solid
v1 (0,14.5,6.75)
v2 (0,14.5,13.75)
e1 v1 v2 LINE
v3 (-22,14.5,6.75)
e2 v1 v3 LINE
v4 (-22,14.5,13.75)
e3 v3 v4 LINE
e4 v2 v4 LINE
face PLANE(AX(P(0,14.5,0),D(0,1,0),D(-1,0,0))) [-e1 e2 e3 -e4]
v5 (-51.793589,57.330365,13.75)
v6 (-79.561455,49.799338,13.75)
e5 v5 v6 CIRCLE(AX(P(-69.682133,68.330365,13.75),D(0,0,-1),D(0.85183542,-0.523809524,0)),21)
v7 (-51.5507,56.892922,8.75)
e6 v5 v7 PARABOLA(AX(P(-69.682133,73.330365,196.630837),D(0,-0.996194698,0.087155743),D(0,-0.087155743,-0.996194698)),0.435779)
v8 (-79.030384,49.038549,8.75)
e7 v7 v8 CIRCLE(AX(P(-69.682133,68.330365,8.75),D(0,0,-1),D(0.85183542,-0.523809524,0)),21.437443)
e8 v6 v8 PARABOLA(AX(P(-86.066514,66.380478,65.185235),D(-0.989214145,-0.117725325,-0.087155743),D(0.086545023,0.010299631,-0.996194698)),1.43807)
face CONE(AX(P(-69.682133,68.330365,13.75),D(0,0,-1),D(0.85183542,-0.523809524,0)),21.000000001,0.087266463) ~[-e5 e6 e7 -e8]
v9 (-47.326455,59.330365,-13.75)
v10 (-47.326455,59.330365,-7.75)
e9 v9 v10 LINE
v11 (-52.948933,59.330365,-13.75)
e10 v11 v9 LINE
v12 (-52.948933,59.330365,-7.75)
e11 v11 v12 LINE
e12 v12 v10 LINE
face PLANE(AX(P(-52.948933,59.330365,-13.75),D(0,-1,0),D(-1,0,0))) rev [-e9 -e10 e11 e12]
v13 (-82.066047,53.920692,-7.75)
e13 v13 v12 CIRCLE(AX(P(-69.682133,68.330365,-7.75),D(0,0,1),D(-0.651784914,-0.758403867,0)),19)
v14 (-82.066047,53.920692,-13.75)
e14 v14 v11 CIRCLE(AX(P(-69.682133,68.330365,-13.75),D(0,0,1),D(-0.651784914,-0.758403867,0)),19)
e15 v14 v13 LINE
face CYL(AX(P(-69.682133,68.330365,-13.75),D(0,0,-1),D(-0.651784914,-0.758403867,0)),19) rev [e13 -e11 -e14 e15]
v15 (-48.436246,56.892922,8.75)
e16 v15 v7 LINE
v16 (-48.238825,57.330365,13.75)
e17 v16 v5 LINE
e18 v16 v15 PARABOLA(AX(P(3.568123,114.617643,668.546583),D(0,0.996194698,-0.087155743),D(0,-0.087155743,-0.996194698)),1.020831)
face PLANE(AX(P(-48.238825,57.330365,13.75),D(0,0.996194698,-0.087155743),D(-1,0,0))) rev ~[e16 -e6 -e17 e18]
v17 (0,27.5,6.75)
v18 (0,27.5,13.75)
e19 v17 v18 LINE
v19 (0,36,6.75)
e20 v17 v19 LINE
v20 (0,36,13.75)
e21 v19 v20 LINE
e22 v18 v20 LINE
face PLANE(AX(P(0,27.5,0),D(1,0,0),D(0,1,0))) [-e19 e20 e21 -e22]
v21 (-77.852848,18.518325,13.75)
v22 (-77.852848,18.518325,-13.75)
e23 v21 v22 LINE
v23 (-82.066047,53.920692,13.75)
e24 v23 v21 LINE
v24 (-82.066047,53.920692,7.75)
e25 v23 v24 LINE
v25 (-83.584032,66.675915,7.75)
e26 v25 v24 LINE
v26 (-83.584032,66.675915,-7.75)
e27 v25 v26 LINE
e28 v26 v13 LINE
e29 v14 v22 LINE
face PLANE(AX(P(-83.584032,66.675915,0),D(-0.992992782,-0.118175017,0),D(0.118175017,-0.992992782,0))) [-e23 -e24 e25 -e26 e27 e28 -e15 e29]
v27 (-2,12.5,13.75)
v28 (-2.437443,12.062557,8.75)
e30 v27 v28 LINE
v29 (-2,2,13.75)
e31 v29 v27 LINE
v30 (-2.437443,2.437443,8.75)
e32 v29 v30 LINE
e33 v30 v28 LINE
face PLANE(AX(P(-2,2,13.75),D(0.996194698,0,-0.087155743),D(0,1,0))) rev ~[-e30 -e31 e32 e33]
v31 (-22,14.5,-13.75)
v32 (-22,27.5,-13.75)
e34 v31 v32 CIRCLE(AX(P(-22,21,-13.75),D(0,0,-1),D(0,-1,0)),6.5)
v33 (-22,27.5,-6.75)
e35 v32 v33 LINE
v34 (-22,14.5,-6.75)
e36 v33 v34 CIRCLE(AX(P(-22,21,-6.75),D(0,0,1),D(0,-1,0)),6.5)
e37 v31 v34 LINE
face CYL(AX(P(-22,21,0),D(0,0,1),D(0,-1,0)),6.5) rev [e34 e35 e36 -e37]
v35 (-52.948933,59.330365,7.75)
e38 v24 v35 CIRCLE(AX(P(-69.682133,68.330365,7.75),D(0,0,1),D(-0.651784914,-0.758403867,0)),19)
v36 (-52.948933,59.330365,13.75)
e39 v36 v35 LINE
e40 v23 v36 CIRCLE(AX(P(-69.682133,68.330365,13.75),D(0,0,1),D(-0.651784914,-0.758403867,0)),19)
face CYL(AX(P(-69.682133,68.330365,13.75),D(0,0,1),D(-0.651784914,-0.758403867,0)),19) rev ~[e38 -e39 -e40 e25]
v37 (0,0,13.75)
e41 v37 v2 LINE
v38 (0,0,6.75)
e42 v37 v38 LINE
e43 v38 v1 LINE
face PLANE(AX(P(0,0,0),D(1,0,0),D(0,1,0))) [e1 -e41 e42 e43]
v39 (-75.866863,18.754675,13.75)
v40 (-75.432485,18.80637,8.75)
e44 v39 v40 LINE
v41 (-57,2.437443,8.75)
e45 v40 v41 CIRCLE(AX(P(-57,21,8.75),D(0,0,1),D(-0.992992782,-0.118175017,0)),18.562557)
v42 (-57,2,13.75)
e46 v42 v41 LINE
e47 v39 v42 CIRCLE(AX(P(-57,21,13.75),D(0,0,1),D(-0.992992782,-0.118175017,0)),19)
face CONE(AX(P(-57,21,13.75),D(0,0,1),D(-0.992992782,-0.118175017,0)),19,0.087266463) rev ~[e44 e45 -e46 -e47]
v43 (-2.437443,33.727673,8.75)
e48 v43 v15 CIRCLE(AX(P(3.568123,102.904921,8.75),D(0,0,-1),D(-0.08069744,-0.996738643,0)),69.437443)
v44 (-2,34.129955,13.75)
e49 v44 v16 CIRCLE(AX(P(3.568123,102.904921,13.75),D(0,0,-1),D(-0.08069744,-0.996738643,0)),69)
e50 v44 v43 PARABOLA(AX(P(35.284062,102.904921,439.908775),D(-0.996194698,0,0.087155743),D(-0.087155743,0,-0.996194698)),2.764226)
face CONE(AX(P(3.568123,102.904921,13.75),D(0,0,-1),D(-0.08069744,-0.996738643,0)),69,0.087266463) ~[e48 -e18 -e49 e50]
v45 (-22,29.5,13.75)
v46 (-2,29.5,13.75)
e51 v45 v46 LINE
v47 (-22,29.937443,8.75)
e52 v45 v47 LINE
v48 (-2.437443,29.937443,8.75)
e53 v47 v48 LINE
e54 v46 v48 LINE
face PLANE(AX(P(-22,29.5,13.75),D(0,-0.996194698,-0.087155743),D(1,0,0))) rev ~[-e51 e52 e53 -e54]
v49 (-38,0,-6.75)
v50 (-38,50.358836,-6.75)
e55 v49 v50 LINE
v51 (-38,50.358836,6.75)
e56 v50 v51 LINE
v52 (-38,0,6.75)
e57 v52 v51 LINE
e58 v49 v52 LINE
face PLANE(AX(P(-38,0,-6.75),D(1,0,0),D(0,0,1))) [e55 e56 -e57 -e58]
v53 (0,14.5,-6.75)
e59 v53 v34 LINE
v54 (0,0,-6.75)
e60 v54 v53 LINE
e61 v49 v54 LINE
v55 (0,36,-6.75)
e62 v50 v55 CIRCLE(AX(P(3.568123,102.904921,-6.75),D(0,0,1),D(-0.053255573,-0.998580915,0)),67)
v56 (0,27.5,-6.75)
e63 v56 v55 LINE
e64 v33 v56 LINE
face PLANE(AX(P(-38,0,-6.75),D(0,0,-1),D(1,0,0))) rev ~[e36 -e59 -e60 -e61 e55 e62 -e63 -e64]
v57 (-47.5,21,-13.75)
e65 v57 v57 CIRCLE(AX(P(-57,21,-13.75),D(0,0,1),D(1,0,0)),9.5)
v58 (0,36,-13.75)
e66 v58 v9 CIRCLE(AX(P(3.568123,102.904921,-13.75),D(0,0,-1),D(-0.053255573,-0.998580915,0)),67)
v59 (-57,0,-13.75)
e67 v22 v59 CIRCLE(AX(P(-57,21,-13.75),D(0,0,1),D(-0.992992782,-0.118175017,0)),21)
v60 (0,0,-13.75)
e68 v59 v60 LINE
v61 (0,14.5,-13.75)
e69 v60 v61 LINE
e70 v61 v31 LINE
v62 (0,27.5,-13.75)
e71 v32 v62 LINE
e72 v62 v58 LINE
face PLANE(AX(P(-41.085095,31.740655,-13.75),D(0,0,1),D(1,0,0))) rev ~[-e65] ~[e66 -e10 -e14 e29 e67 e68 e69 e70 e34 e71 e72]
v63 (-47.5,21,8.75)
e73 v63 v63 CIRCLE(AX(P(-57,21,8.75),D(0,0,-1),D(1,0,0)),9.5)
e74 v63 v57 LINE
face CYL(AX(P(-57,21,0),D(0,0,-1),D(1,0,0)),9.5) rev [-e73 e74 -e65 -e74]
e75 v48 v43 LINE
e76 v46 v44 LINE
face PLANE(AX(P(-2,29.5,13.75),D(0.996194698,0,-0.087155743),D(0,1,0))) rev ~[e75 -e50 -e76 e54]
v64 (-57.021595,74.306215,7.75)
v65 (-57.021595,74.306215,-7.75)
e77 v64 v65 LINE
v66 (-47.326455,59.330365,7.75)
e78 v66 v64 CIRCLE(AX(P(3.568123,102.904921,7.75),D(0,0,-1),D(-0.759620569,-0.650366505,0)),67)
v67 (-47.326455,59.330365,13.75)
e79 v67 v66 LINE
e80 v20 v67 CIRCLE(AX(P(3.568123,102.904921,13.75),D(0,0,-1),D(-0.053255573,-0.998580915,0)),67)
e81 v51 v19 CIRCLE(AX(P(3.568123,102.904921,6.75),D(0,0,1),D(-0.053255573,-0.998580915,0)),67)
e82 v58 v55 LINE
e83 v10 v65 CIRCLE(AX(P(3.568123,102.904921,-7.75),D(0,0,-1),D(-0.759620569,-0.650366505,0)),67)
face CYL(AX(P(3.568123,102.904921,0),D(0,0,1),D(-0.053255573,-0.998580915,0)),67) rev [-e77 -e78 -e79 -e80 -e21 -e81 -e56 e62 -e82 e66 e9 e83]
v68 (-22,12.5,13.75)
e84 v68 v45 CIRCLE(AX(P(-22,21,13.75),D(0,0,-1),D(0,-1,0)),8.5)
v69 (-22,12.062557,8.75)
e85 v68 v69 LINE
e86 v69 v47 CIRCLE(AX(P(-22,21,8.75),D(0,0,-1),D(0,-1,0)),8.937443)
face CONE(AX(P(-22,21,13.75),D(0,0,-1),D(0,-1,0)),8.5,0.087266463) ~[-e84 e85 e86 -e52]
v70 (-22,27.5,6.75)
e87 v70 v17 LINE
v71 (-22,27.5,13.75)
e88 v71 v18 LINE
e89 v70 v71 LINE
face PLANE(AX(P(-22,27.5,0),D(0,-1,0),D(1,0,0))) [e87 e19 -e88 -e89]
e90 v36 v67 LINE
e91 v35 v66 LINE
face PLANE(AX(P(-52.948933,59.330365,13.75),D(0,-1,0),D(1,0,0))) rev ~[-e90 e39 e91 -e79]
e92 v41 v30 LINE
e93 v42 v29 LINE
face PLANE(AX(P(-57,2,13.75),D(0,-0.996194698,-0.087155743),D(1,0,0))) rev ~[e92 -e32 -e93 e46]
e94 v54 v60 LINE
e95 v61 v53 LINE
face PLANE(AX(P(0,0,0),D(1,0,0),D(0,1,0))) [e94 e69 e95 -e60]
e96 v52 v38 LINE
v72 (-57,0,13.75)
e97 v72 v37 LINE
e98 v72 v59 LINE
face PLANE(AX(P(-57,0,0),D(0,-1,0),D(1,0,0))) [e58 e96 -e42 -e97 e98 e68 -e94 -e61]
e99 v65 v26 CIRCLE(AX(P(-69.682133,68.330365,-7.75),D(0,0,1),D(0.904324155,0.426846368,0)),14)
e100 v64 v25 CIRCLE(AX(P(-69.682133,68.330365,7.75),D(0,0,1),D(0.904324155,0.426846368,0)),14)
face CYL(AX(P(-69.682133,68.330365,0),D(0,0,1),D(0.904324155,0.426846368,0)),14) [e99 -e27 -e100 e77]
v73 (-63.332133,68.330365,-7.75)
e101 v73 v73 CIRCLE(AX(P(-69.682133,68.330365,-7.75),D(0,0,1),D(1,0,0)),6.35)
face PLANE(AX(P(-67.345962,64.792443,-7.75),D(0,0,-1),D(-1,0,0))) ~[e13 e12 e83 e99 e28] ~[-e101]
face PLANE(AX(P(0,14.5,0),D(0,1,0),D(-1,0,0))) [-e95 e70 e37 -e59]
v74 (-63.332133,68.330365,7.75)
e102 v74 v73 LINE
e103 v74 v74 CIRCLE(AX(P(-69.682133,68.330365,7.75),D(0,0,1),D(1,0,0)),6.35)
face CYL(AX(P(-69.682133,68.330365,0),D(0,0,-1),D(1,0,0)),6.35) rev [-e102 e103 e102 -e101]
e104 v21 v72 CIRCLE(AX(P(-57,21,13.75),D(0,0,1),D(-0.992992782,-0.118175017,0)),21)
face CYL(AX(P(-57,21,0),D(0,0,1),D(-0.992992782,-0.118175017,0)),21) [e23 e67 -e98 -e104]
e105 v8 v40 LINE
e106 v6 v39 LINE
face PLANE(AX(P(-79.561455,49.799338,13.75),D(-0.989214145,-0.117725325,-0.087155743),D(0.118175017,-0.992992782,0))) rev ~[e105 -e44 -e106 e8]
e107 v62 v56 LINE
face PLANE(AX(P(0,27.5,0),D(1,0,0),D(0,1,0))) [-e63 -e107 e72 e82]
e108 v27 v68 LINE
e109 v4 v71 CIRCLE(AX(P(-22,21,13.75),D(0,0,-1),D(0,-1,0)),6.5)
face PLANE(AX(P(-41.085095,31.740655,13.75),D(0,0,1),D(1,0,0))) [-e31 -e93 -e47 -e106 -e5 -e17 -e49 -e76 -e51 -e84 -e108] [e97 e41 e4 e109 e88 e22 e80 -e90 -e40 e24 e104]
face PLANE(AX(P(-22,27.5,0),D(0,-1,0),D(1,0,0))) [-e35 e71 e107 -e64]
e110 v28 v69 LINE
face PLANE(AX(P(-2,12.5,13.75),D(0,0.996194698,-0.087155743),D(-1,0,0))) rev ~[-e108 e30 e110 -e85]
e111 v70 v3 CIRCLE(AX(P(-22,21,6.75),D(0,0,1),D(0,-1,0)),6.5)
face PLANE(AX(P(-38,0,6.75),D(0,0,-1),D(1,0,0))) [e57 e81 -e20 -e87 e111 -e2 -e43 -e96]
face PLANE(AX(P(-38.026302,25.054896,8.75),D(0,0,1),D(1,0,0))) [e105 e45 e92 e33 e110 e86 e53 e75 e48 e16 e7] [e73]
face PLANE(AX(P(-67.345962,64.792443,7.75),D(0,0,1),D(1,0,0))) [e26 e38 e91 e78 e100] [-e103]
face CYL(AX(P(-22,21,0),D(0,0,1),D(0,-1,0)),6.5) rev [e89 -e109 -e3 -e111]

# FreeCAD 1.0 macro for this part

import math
import FreeCAD as App
import Part
import Sketcher
Q = App.Units.Quantity


def faces_at(feature, points):
    """Names of the faces that lie closest to the given points."""
    faces = feature.Shape.Faces
    near = lambda p: min(range(len(faces)), key=lambda i: faces[i].distToShape(Part.Vertex(*p))[0])
    return sorted({f"Face{near(p) + 1}" for p in points})


def add_polygon(sketch, points):
    """Adds a closed chain of lines whose ends are joined by coincident constraints."""
    first, n = sketch.GeometryCount, len(points)
    for a, b in zip(points, points[1:] + points[:1]):
        sketch.addGeometry(Part.LineSegment(App.Vector(*a, 0), App.Vector(*b, 0)), False)
    for i in range(n):
        sketch.addConstraint(Sketcher.Constraint("Coincident", first + i, 2, first + (i + 1) % n, 1))

doc = App.newDocument("Part")
body = doc.addObject("PartDesign::Body", "Body")

sketch1 = body.newObject("Sketcher::SketchObject", "Sketch")
sketch1.AttachmentSupport = (doc.getObject("XY_Plane"), [""])
sketch1.MapMode = "FlatFace"
sketch1.addGeometry(Part.LineSegment(App.Vector(0, 0, 0), App.Vector(0, 14.5, 0)), False)
sketch1.addGeometry(Part.LineSegment(App.Vector(0, 14.5, 0), App.Vector(-22, 14.5, 0)), False)
sketch1.addGeometry(Part.ArcOfCircle(Part.Circle(App.Vector(-22, 21, 0), App.Vector(0, 0, 1), 6.5), math.radians(90), math.radians(270)), False)
sketch1.addGeometry(Part.LineSegment(App.Vector(-22, 27.5, 0), App.Vector(0, 27.5, 0)), False)
sketch1.addGeometry(Part.LineSegment(App.Vector(0, 27.5, 0), App.Vector(0, 36, 0)), False)
sketch1.addGeometry(Part.ArcOfCircle(Part.Circle(App.Vector(3.568123, 102.904921, 0), App.Vector(0, 0, 1), 67), math.radians(-154.732411), math.radians(-93.052764)), False)
sketch1.addGeometry(Part.ArcOfCircle(Part.Circle(App.Vector(-69.682133, 68.330365, 0), App.Vector(0, 0, 1), 14), math.radians(25.267589), math.radians(186.786789)), False)
sketch1.addGeometry(Part.LineSegment(App.Vector(-83.584032, 66.675915, 0), App.Vector(-77.852848, 18.518325, 0)), False)
sketch1.addGeometry(Part.ArcOfCircle(Part.Circle(App.Vector(-57, 21, 0), App.Vector(0, 0, 1), 21), math.radians(-173.213211), math.radians(-90)), False)
sketch1.addGeometry(Part.LineSegment(App.Vector(-57, 0, 0), App.Vector(0, 0, 0)), False)
sketch1.addGeometry(Part.Circle(App.Vector(-57, 21, 0), App.Vector(0, 0, 1), 9.5), False)
sketch1.addGeometry(Part.Circle(App.Vector(-69.682133, 68.330365, 0), App.Vector(0, 0, 1), 6.35), False)
sketch1.addConstraint(Sketcher.Constraint("Coincident", 0, 2, 1, 1))
sketch1.addConstraint(Sketcher.Constraint("Tangent", 1, 2, 2, 2))
sketch1.addConstraint(Sketcher.Constraint("Tangent", 2, 1, 3, 1))
sketch1.addConstraint(Sketcher.Constraint("Coincident", 3, 2, 4, 1))
sketch1.addConstraint(Sketcher.Constraint("Coincident", 4, 2, 5, 2))
sketch1.addConstraint(Sketcher.Constraint("Tangent", 5, 1, 6, 1))
sketch1.addConstraint(Sketcher.Constraint("Tangent", 6, 2, 7, 1))
sketch1.addConstraint(Sketcher.Constraint("Tangent", 7, 2, 8, 1))
sketch1.addConstraint(Sketcher.Constraint("Tangent", 8, 2, 9, 1))
sketch1.addConstraint(Sketcher.Constraint("Coincident", 9, 2, 0, 1))
sketch1.addConstraint(Sketcher.Constraint("Vertical", 0))
sketch1.addConstraint(Sketcher.Constraint("Horizontal", 1))
sketch1.addConstraint(Sketcher.Constraint("Horizontal", 3))
sketch1.addConstraint(Sketcher.Constraint("Vertical", 4))
sketch1.addConstraint(Sketcher.Constraint("Horizontal", 9))
sketch1.addConstraint(Sketcher.Constraint("Coincident", 9, 2, -1, 1))
sketch1.addConstraint(Sketcher.Constraint("Coincident", 10, 3, 8, 3))
sketch1.addConstraint(Sketcher.Constraint("Coincident", 11, 3, 6, 3))
sketch1.addConstraint(Sketcher.Constraint("PointOnObject", 3, 2, -2))
sketch1.addConstraint(Sketcher.Constraint("Horizontal", 2, 3, 8, 3))
sketch1.addConstraint(Sketcher.Constraint("Diameter", 10, Q("19 mm")))
sketch1.addConstraint(Sketcher.Constraint("Radius", 5, Q("67 mm")))
sketch1.addConstraint(Sketcher.Constraint("Radius", 6, Q("14 mm")))
sketch1.addConstraint(Sketcher.Constraint("Radius", 8, Q("21 mm")))
sketch1.addConstraint(Sketcher.Constraint("Diameter", 11, Q("12.7 mm")))
sketch1.addConstraint(Sketcher.Constraint("Radius", 2, Q("6.5 mm")))
sketch1.addConstraint(Sketcher.Constraint("DistanceX", 1, 2, 1, 1, Q("22 mm")))
sketch1.addConstraint(Sketcher.Constraint("DistanceX", 9, 1, 9, 2, Q("57 mm")))
sketch1.addConstraint(Sketcher.Constraint("DistanceY", 4, 1, 4, 2, Q("8.5 mm")))
sketch1.addConstraint(Sketcher.Constraint("DistanceX", 6, 2, 6, 3, Q("13.901899 mm")))
sketch1.addConstraint(Sketcher.Constraint("DistanceY", -1, 1, 5, 3, Q("102.904921 mm")))
pad1 = body.newObject("PartDesign::Pad", "Pad")
pad1.Profile = sketch1
pad1.Length = 27.5
pad1.Midplane = True

sketch2 = body.newObject("Sketcher::SketchObject", "Sketch001")
sketch2.AttachmentSupport = (doc.getObject("XY_Plane"), [""])
sketch2.MapMode = "FlatFace"
sketch2.AttachmentOffset = App.Placement(App.Vector(0, 0, 13.75), App.Rotation())
sketch2.addGeometry(Part.ArcOfCircle(Part.Circle(App.Vector(-69.682133, 68.330365, 0), App.Vector(0, 0, 1), 14), math.radians(25.267589), math.radians(186.786789)), False)
sketch2.addGeometry(Part.LineSegment(App.Vector(-83.584032, 66.675915, 0), App.Vector(-82.066047, 53.920692, 0)), False)
sketch2.addGeometry(Part.ArcOfCircle(Part.Circle(App.Vector(-69.682133, 68.330365, 0), App.Vector(0, 0, 1), 19), math.radians(-130.676312), math.radians(-28.273714)), False)
sketch2.addGeometry(Part.LineSegment(App.Vector(-52.948933, 59.330365, 0), App.Vector(-47.326455, 59.330365, 0)), False)
sketch2.addGeometry(Part.ArcOfCircle(Part.Circle(App.Vector(3.568123, 102.904921, 0), App.Vector(0, 0, 1), 67), math.radians(-154.732411), math.radians(-139.43076)), False)
sketch2.addGeometry(Part.Circle(App.Vector(-69.682133, 68.330365, 0), App.Vector(0, 0, 1), 6.35), False)
sketch2.addConstraint(Sketcher.Constraint("Tangent", 0, 2, 1, 1))
sketch2.addConstraint(Sketcher.Constraint("Coincident", 1, 2, 2, 1))
sketch2.addConstraint(Sketcher.Constraint("Coincident", 2, 2, 3, 1))
sketch2.addConstraint(Sketcher.Constraint("Coincident", 3, 2, 4, 2))
sketch2.addConstraint(Sketcher.Constraint("Tangent", 4, 1, 0, 1))
sketch2.addConstraint(Sketcher.Constraint("Horizontal", 3))
sketch2.addConstraint(Sketcher.Constraint("Coincident", 2, 3, 0, 3))
sketch2.addConstraint(Sketcher.Constraint("Coincident", 5, 3, 0, 3))
sketch2.addConstraint(Sketcher.Constraint("Radius", 0, Q("14 mm")))
sketch2.addConstraint(Sketcher.Constraint("Radius", 2, Q("19 mm")))
sketch2.addConstraint(Sketcher.Constraint("Radius", 4, Q("67 mm")))
sketch2.addConstraint(Sketcher.Constraint("Diameter", 5, Q("12.7 mm")))
sketch2.addConstraint(Sketcher.Constraint("DistanceY", 2, 2, 2, 3, Q("9 mm")))
sketch2.addConstraint(Sketcher.Constraint("DistanceX", 0, 2, 0, 3, Q("13.901899 mm")))
sketch2.addConstraint(Sketcher.Constraint("DistanceX", 3, 1, 3, 2, Q("5.622478 mm")))
sketch2.addConstraint(Sketcher.Constraint("DistanceY", -1, 1, 4, 3, Q("102.904921 mm")))
sketch2.addConstraint(Sketcher.Constraint("DistanceX", 0, 3, -1, 1, Q("69.682133 mm")))
pocket1 = body.newObject("PartDesign::Pocket", "Pocket")
pocket1.Profile = sketch2
pocket1.Length = 6
doc.recompute()

mirrored = body.newObject("PartDesign::Mirrored", "Mirrored")
mirrored.Originals = [pocket1]
mirrored.MirrorPlane = (doc.getObject("XY_Plane"), [""])
body.Tip = mirrored

sketch3 = body.newObject("Sketcher::SketchObject", "Sketch002")
sketch3.AttachmentSupport = (doc.getObject("XZ_Plane"), [""])
sketch3.MapMode = "FlatFace"
add_polygon(sketch3, [(-38, 6.75), (-38, -6.75), (0, -6.75), (0, 6.75)])
sketch3.addConstraint(Sketcher.Constraint("Vertical", 0))
sketch3.addConstraint(Sketcher.Constraint("Horizontal", 1))
sketch3.addConstraint(Sketcher.Constraint("Vertical", 2))
sketch3.addConstraint(Sketcher.Constraint("Horizontal", 3))
sketch3.addConstraint(Sketcher.Constraint("Symmetric", 1, 2, 2, 2, -1, 1))
sketch3.addConstraint(Sketcher.Constraint("DistanceX", 1, 1, 1, 2, Q("38 mm")))
sketch3.addConstraint(Sketcher.Constraint("DistanceY", 0, 2, 0, 1, Q("13.5 mm")))
pocket2 = body.newObject("PartDesign::Pocket", "Pocket001")
pocket2.Profile = sketch3
pocket2.Type = "ThroughAll"
body2 = doc.addObject("PartDesign::Body", "Body001")

sketch4 = body2.newObject("Sketcher::SketchObject", "Sketch003")
sketch4.AttachmentSupport = (doc.getObject("XY_Plane001"), [""])
sketch4.MapMode = "FlatFace"
sketch4.AttachmentOffset = App.Placement(App.Vector(0, 0, 13.75), App.Rotation())
sketch4.addGeometry(Part.ArcOfCircle(Part.Circle(App.Vector(-69.682133, 68.330365, 0), App.Vector(0, 0, 1), 21), math.radians(-118.063115), math.radians(-31.588136)), False)
sketch4.addGeometry(Part.LineSegment(App.Vector(-79.561455, 49.799338, 0), App.Vector(-75.866863, 18.754675, 0)), False)
sketch4.addGeometry(Part.ArcOfCircle(Part.Circle(App.Vector(-57, 21, 0), App.Vector(0, 0, 1), 19), math.radians(-173.213211), math.radians(-90)), False)
sketch4.addGeometry(Part.LineSegment(App.Vector(-57, 2, 0), App.Vector(-2, 2, 0)), False)
sketch4.addGeometry(Part.LineSegment(App.Vector(-2, 2, 0), App.Vector(-2, 12.5, 0)), False)
sketch4.addGeometry(Part.LineSegment(App.Vector(-2, 12.5, 0), App.Vector(-22, 12.5, 0)), False)
sketch4.addGeometry(Part.ArcOfCircle(Part.Circle(App.Vector(-22, 21, 0), App.Vector(0, 0, 1), 8.5), math.radians(90), math.radians(270)), False)
sketch4.addGeometry(Part.LineSegment(App.Vector(-22, 29.5, 0), App.Vector(-2, 29.5, 0)), False)
sketch4.addGeometry(Part.LineSegment(App.Vector(-2, 29.5, 0), App.Vector(-2, 34.129955, 0)), False)
sketch4.addGeometry(Part.ArcOfCircle(Part.Circle(App.Vector(3.568123, 102.904921, 0), App.Vector(0, 0, 1), 69), math.radians(-138.661921), math.radians(-94.628656)), False)
sketch4.addGeometry(Part.LineSegment(App.Vector(-48.238825, 57.330365, 0), App.Vector(-51.793589, 57.330365, 0)), False)
sketch4.addConstraint(Sketcher.Constraint("Coincident", 0, 1, 1, 1))
sketch4.addConstraint(Sketcher.Constraint("Tangent", 1, 2, 2, 1))
sketch4.addConstraint(Sketcher.Constraint("Tangent", 2, 2, 3, 1))
sketch4.addConstraint(Sketcher.Constraint("Coincident", 3, 2, 4, 1))
sketch4.addConstraint(Sketcher.Constraint("Coincident", 4, 2, 5, 1))
sketch4.addConstraint(Sketcher.Constraint("Tangent", 5, 2, 6, 2))
sketch4.addConstraint(Sketcher.Constraint("Tangent", 6, 1, 7, 1))
sketch4.addConstraint(Sketcher.Constraint("Coincident", 7, 2, 8, 1))
sketch4.addConstraint(Sketcher.Constraint("Coincident", 8, 2, 9, 2))
sketch4.addConstraint(Sketcher.Constraint("Coincident", 9, 1, 10, 1))
sketch4.addConstraint(Sketcher.Constraint("Coincident", 10, 2, 0, 2))
sketch4.addConstraint(Sketcher.Constraint("Horizontal", 3))
sketch4.addConstraint(Sketcher.Constraint("Vertical", 4))
sketch4.addConstraint(Sketcher.Constraint("Horizontal", 5))
sketch4.addConstraint(Sketcher.Constraint("Horizontal", 7))
sketch4.addConstraint(Sketcher.Constraint("Vertical", 8))
sketch4.addConstraint(Sketcher.Constraint("Horizontal", 10))
sketch4.addConstraint(Sketcher.Constraint("Horizontal", 2, 3, 6, 3))
sketch4.addConstraint(Sketcher.Constraint("Vertical", 4, 2, 7, 2))
sketch4.addConstraint(Sketcher.Constraint("Radius", 0, Q("21 mm")))
sketch4.addConstraint(Sketcher.Constraint("Radius", 2, Q("19 mm")))
sketch4.addConstraint(Sketcher.Constraint("Radius", 9, Q("69 mm")))
sketch4.addConstraint(Sketcher.Constraint("Radius", 6, Q("8.5 mm")))
sketch4.addConstraint(Sketcher.Constraint("DistanceX", 3, 1, 3, 2, Q("55 mm")))
sketch4.addConstraint(Sketcher.Constraint("DistanceX", 5, 2, 5, 1, Q("20 mm")))
sketch4.addConstraint(Sketcher.Constraint("DistanceX", 2, 3, -1, 1, Q("57 mm")))
sketch4.addConstraint(Sketcher.Constraint("DistanceY", -1, 1, 2, 3, Q("21 mm")))
sketch4.addConstraint(Sketcher.Constraint("DistanceY", 9, 1, 0, 3, Q("11 mm")))
sketch4.addConstraint(Sketcher.Constraint("DistanceX", 10, 2, 10, 1, Q("3.554765 mm")))
sketch4.addConstraint(Sketcher.Constraint("DistanceY", 8, 1, 8, 2, Q("4.629955 mm")))
sketch4.addConstraint(Sketcher.Constraint("DistanceY", -1, 1, 9, 3, Q("102.904921 mm")))
sketch4.addConstraint(Sketcher.Constraint("DistanceX", 10, 2, -1, 1, Q("51.793589 mm")))
sketch4.addConstraint(Sketcher.Constraint("DistanceX", 0, 1, 9, 3, Q("83.129579 mm")))
pad2 = body2.newObject("PartDesign::Pad", "Pad001")
pad2.Profile = sketch4
pad2.Length = 5
pad2.Reversed = True
doc.recompute()

datumplane = body2.newObject("PartDesign::Plane", "DatumPlane")
datumplane.AttachmentSupport = (doc.getObject("XY_Plane001"), [""])
datumplane.MapMode = "FlatFace"
datumplane.AttachmentOffset = App.Placement(App.Vector(0, 0, 13.75), App.Rotation())
draft = body2.newObject("PartDesign::Draft", "Draft")
draft.Base = (pad2, faces_at(pad2, [
    (-50.016, 57.33, 11.25),
    (-64.185, 48.063, 11.25),
    (-77.714, 34.277, 11.25),
    (-69.616, 6.793, 11.25),
    (-29.5, 2, 11.25),
    (-2, 7.25, 11.25),
    (-12, 12.5, 11.25),
    (-30.5, 21, 11.25),
    (-12, 29.5, 11.25),
    (-2, 31.815, 11.25),
    (-27.376, 41.233, 11.25),
]))
draft.NeutralPlane = (datumplane, [""])
draft.Angle = 5
draft.Reversed = True
doc.recompute()

boolean = body.newObject("PartDesign::Boolean", "Boolean")
boolean.Type = "Cut"
boolean.addObjects([body2])

doc.recompute()
